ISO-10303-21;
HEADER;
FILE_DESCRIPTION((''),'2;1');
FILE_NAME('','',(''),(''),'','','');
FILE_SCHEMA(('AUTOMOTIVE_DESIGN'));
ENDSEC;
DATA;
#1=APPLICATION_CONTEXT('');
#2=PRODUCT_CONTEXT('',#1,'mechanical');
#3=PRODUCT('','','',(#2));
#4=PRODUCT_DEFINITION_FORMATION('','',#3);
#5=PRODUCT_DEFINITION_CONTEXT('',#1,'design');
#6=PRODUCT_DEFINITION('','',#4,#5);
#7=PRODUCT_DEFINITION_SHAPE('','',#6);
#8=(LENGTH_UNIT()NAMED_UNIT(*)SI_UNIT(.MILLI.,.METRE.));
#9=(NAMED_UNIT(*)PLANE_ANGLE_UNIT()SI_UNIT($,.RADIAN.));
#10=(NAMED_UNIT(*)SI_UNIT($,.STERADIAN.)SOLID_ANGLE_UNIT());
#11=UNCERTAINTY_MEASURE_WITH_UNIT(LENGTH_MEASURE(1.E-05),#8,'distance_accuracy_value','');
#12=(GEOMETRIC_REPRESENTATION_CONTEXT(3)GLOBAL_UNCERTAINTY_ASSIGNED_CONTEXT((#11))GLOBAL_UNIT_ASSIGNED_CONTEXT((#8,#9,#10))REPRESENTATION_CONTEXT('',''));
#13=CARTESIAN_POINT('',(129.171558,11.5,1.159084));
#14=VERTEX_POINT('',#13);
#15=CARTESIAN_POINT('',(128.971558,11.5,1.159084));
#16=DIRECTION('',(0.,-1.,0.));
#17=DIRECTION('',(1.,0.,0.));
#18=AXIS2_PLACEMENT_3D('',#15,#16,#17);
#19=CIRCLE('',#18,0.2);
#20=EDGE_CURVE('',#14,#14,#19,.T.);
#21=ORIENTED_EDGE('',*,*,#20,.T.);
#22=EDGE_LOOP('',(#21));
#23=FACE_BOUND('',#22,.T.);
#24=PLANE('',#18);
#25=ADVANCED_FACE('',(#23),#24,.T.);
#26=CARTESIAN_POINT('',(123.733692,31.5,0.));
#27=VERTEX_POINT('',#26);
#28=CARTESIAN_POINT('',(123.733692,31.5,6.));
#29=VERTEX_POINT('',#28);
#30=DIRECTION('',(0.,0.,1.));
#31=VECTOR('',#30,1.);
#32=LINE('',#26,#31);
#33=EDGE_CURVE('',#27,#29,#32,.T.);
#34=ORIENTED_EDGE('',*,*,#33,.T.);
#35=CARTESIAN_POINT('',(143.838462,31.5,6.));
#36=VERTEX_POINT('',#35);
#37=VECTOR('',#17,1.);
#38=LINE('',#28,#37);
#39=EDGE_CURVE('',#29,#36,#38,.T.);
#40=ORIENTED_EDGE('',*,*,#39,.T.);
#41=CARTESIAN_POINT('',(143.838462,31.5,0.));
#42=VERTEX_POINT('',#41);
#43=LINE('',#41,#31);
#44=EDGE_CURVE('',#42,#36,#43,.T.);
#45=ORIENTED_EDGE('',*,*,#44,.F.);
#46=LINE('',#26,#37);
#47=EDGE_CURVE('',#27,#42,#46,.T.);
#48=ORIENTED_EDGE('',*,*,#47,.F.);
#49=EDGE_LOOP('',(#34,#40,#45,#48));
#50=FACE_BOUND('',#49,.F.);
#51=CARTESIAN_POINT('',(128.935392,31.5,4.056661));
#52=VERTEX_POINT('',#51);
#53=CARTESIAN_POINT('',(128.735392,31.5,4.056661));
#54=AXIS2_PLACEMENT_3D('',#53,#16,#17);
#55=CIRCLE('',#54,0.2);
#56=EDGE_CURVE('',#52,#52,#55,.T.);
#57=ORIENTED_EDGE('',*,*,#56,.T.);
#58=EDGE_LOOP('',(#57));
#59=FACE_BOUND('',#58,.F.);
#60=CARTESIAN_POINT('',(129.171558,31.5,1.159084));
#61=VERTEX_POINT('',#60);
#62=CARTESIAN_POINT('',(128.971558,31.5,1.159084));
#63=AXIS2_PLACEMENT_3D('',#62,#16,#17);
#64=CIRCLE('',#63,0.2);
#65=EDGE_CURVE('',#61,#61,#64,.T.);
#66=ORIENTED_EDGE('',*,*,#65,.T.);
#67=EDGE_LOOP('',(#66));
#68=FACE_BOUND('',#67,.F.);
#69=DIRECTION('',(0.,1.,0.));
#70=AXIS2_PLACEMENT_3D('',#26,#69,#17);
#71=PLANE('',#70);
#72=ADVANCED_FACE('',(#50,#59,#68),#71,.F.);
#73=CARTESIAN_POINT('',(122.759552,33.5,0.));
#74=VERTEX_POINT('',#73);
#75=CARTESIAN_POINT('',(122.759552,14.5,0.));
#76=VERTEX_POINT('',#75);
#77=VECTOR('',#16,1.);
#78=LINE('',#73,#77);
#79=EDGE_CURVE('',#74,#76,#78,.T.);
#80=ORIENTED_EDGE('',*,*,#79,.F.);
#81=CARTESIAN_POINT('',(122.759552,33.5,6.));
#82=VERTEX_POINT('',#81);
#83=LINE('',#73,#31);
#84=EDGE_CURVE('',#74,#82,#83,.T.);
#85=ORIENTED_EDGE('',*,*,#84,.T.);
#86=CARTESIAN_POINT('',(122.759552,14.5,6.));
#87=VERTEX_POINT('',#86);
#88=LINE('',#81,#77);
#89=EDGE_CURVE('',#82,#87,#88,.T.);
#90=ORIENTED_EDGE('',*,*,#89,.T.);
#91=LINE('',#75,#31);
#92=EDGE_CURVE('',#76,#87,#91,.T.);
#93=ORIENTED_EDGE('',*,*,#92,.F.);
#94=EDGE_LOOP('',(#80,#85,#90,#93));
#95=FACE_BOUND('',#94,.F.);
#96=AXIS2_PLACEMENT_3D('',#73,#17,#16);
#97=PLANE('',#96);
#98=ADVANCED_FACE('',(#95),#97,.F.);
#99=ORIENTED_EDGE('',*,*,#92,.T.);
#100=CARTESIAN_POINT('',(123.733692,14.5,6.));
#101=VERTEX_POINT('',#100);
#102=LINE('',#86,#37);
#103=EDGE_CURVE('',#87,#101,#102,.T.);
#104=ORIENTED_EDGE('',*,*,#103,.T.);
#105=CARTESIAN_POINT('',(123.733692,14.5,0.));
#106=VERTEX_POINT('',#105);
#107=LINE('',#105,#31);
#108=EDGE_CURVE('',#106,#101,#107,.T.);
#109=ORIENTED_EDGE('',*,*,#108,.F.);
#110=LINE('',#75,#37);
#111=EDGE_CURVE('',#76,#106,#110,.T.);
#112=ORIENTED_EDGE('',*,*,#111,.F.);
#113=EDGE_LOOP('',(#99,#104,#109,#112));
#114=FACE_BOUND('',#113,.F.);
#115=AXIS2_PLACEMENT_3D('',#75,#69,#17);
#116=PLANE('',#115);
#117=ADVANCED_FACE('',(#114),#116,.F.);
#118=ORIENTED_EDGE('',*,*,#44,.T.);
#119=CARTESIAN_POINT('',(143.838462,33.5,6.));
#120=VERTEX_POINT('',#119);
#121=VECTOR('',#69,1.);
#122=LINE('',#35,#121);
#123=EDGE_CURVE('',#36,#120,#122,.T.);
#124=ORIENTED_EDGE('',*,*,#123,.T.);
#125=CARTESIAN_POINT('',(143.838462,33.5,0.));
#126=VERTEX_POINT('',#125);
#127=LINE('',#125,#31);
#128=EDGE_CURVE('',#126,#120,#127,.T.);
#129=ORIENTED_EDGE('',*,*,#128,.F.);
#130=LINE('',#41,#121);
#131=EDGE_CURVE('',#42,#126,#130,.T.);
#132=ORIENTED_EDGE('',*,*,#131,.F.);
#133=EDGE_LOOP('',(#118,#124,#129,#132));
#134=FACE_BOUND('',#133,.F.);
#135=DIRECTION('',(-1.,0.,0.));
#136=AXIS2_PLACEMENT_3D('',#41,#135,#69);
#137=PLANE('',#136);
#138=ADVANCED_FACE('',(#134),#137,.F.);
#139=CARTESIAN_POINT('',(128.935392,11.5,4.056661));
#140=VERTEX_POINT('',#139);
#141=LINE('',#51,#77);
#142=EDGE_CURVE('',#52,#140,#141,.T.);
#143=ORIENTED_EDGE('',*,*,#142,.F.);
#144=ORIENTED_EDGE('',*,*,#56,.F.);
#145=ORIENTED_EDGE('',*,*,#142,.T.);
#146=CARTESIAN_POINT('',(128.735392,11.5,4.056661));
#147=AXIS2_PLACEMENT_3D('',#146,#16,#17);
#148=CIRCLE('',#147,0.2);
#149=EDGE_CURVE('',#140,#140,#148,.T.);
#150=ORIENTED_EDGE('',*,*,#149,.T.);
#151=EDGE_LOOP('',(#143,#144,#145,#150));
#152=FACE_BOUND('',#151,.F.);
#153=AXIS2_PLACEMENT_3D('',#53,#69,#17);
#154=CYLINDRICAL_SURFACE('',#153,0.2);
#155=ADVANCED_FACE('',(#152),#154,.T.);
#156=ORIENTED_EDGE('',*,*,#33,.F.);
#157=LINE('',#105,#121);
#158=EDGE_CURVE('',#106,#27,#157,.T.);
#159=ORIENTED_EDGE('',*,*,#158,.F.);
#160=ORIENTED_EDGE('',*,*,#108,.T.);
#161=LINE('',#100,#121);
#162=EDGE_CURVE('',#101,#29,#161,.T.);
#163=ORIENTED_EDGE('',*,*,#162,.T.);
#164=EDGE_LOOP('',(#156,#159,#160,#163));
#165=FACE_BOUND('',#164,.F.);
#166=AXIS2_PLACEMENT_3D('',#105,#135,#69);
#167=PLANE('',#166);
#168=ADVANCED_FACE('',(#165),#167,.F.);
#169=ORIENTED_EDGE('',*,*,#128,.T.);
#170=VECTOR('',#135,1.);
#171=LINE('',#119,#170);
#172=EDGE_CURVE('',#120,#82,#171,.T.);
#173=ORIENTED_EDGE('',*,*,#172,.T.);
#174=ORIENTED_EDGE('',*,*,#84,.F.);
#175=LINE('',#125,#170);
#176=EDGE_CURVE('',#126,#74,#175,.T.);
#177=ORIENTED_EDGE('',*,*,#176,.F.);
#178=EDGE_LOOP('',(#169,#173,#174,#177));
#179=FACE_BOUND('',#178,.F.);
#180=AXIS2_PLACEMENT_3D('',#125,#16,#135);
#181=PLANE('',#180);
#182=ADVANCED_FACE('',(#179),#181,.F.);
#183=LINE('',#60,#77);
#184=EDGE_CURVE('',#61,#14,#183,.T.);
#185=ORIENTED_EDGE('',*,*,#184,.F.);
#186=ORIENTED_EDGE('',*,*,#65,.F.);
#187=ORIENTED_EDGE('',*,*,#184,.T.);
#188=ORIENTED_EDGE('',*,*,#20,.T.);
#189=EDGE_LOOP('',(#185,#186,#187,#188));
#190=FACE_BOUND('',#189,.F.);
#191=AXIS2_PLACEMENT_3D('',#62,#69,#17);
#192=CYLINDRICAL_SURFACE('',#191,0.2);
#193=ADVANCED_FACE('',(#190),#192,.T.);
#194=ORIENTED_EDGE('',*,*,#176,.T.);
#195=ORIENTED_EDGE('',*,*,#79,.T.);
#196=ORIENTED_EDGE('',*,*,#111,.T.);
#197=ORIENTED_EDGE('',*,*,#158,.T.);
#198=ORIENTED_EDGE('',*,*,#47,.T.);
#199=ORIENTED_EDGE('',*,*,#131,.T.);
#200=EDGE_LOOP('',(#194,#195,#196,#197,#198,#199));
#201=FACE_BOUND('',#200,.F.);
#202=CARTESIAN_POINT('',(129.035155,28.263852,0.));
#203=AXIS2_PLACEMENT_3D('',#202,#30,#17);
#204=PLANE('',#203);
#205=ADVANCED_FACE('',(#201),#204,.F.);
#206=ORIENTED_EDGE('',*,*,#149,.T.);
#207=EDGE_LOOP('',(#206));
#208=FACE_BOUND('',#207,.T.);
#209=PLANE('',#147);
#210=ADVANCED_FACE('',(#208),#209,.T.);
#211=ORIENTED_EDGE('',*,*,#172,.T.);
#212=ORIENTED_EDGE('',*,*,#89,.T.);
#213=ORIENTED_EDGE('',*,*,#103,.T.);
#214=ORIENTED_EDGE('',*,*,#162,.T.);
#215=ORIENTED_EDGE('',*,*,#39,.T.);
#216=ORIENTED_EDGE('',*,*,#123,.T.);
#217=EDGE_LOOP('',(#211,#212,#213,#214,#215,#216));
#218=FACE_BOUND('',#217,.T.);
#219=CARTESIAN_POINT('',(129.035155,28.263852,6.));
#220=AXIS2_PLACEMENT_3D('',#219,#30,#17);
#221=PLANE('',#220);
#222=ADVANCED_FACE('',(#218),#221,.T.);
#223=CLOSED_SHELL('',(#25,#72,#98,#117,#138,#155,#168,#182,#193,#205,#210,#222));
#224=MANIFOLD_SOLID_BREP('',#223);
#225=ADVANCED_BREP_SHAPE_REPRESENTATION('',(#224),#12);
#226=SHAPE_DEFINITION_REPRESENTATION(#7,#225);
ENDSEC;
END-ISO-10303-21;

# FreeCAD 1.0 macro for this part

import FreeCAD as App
import Part
import Sketcher

V = App.Vector

doc = App.newDocument("Part")
params = doc.addObject("Spreadsheet::Sheet", "Params")
for row, (alias, value) in enumerate([
    ("sketch1_height", "17 mm"),
    ("sketch1_height2", "2 mm"),
    ("pad1_length", "6 mm"),
    ("sketch2_diameter", "0.4 mm"),
    ("pad2_length", "20 mm"),
], start=1):
    params.set(f"A{row}", alias)
    params.set(f"B{row}", "=" + value)
    params.setAlias(f"B{row}", alias)

body = doc.addObject("PartDesign::Body", "Body")

sketch1 = body.newObject("Sketcher::SketchObject", "Sketch")
sketch1.AttachmentSupport = (doc.getObject("XY_Plane"), [""])
sketch1.MapMode = "FlatFace"
sketch1.addGeometry(Part.LineSegment(V(123.733692, 14.5, 0), V(123.733692, 31.5, 0)), False)
sketch1.addGeometry(Part.LineSegment(V(123.733692, 31.5, 0), V(143.838462, 31.5, 0)), False)
sketch1.addGeometry(Part.LineSegment(V(143.838462, 31.5, 0), V(143.838462, 33.5, 0)), False)
sketch1.addGeometry(Part.LineSegment(V(143.838462, 33.5, 0), V(122.759552, 33.5, 0)), False)
sketch1.addGeometry(Part.LineSegment(V(122.759552, 33.5, 0), V(122.759552, 14.5, 0)), False)
sketch1.addGeometry(Part.LineSegment(V(122.759552, 14.5, 0), V(123.733692, 14.5, 0)), False)
sketch1.addConstraint(Sketcher.Constraint("Coincident", 0, 2, 1, 1))
sketch1.addConstraint(Sketcher.Constraint("Coincident", 1, 2, 2, 1))
sketch1.addConstraint(Sketcher.Constraint("Coincident", 2, 2, 3, 1))
sketch1.addConstraint(Sketcher.Constraint("Coincident", 3, 2, 4, 1))
sketch1.addConstraint(Sketcher.Constraint("Coincident", 4, 2, 5, 1))
sketch1.addConstraint(Sketcher.Constraint("Coincident", 5, 2, 0, 1))
sketch1.addConstraint(Sketcher.Constraint("Vertical", 0))
sketch1.addConstraint(Sketcher.Constraint("Horizontal", 1))
sketch1.addConstraint(Sketcher.Constraint("Vertical", 2))
sketch1.addConstraint(Sketcher.Constraint("Horizontal", 3))
sketch1.addConstraint(Sketcher.Constraint("Vertical", 4))
sketch1.addConstraint(Sketcher.Constraint("Horizontal", 5))
sketch1.addConstraint(Sketcher.Constraint("DistanceY", 0, 1, 0, 2, 17.0))
sketch1.addConstraint(Sketcher.Constraint("DistanceY", 2, 1, 2, 2, 2.0))
sketch1.addConstraint(Sketcher.Constraint("DistanceY", -1, 1, 0, 2, 31.5))
sketch1.addConstraint(Sketcher.Constraint("DistanceX", 1, 1, 1, 2, 20.104769))
sketch1.addConstraint(Sketcher.Constraint("DistanceX", 3, 2, 3, 1, 21.07891))
sketch1.addConstraint(Sketcher.Constraint("DistanceX", -1, 1, 1, 2, 143.838462))
sketch1.setExpression("Constraints[12]", "Params.sketch1_height")
sketch1.setExpression("Constraints[13]", "Params.sketch1_height2")
pad1 = body.newObject("PartDesign::Pad", "Pad")
pad1.Profile = sketch1
pad1.setExpression("Length", "Params.pad1_length")

sketch2 = body.newObject("Sketcher::SketchObject", "Sketch001")
sketch2.AttachmentSupport = (doc.getObject("XZ_Plane"), [""])
sketch2.MapMode = "FlatFace"
sketch2.AttachmentOffset = App.Placement(V(0, 0, -31.5), App.Rotation())
sketch2.addGeometry(Part.Circle(V(128.735392, 4.056661, 0), V(0, 0, 1), 0.2), False)
sketch2.addGeometry(Part.Circle(V(128.971558, 1.159084, 0), V(0, 0, 1), 0.2), False)
sketch2.addConstraint(Sketcher.Constraint("Equal", 0, 1))
sketch2.addConstraint(Sketcher.Constraint("Diameter", 0, 0.4))
sketch2.addConstraint(Sketcher.Constraint("DistanceX", -1, 1, 0, 3, 128.735392))
sketch2.addConstraint(Sketcher.Constraint("DistanceY", -1, 1, 0, 3, 4.056661))
sketch2.addConstraint(Sketcher.Constraint("DistanceX", -1, 1, 1, 3, 128.971558))
sketch2.addConstraint(Sketcher.Constraint("DistanceY", -1, 1, 1, 3, 1.159084))
sketch2.setExpression("Constraints[1]", "Params.sketch2_diameter")
pad2 = body.newObject("PartDesign::Pad", "Pad001")
pad2.Profile = sketch2
pad2.setExpression("Length", "Params.pad2_length")

doc.recompute()
